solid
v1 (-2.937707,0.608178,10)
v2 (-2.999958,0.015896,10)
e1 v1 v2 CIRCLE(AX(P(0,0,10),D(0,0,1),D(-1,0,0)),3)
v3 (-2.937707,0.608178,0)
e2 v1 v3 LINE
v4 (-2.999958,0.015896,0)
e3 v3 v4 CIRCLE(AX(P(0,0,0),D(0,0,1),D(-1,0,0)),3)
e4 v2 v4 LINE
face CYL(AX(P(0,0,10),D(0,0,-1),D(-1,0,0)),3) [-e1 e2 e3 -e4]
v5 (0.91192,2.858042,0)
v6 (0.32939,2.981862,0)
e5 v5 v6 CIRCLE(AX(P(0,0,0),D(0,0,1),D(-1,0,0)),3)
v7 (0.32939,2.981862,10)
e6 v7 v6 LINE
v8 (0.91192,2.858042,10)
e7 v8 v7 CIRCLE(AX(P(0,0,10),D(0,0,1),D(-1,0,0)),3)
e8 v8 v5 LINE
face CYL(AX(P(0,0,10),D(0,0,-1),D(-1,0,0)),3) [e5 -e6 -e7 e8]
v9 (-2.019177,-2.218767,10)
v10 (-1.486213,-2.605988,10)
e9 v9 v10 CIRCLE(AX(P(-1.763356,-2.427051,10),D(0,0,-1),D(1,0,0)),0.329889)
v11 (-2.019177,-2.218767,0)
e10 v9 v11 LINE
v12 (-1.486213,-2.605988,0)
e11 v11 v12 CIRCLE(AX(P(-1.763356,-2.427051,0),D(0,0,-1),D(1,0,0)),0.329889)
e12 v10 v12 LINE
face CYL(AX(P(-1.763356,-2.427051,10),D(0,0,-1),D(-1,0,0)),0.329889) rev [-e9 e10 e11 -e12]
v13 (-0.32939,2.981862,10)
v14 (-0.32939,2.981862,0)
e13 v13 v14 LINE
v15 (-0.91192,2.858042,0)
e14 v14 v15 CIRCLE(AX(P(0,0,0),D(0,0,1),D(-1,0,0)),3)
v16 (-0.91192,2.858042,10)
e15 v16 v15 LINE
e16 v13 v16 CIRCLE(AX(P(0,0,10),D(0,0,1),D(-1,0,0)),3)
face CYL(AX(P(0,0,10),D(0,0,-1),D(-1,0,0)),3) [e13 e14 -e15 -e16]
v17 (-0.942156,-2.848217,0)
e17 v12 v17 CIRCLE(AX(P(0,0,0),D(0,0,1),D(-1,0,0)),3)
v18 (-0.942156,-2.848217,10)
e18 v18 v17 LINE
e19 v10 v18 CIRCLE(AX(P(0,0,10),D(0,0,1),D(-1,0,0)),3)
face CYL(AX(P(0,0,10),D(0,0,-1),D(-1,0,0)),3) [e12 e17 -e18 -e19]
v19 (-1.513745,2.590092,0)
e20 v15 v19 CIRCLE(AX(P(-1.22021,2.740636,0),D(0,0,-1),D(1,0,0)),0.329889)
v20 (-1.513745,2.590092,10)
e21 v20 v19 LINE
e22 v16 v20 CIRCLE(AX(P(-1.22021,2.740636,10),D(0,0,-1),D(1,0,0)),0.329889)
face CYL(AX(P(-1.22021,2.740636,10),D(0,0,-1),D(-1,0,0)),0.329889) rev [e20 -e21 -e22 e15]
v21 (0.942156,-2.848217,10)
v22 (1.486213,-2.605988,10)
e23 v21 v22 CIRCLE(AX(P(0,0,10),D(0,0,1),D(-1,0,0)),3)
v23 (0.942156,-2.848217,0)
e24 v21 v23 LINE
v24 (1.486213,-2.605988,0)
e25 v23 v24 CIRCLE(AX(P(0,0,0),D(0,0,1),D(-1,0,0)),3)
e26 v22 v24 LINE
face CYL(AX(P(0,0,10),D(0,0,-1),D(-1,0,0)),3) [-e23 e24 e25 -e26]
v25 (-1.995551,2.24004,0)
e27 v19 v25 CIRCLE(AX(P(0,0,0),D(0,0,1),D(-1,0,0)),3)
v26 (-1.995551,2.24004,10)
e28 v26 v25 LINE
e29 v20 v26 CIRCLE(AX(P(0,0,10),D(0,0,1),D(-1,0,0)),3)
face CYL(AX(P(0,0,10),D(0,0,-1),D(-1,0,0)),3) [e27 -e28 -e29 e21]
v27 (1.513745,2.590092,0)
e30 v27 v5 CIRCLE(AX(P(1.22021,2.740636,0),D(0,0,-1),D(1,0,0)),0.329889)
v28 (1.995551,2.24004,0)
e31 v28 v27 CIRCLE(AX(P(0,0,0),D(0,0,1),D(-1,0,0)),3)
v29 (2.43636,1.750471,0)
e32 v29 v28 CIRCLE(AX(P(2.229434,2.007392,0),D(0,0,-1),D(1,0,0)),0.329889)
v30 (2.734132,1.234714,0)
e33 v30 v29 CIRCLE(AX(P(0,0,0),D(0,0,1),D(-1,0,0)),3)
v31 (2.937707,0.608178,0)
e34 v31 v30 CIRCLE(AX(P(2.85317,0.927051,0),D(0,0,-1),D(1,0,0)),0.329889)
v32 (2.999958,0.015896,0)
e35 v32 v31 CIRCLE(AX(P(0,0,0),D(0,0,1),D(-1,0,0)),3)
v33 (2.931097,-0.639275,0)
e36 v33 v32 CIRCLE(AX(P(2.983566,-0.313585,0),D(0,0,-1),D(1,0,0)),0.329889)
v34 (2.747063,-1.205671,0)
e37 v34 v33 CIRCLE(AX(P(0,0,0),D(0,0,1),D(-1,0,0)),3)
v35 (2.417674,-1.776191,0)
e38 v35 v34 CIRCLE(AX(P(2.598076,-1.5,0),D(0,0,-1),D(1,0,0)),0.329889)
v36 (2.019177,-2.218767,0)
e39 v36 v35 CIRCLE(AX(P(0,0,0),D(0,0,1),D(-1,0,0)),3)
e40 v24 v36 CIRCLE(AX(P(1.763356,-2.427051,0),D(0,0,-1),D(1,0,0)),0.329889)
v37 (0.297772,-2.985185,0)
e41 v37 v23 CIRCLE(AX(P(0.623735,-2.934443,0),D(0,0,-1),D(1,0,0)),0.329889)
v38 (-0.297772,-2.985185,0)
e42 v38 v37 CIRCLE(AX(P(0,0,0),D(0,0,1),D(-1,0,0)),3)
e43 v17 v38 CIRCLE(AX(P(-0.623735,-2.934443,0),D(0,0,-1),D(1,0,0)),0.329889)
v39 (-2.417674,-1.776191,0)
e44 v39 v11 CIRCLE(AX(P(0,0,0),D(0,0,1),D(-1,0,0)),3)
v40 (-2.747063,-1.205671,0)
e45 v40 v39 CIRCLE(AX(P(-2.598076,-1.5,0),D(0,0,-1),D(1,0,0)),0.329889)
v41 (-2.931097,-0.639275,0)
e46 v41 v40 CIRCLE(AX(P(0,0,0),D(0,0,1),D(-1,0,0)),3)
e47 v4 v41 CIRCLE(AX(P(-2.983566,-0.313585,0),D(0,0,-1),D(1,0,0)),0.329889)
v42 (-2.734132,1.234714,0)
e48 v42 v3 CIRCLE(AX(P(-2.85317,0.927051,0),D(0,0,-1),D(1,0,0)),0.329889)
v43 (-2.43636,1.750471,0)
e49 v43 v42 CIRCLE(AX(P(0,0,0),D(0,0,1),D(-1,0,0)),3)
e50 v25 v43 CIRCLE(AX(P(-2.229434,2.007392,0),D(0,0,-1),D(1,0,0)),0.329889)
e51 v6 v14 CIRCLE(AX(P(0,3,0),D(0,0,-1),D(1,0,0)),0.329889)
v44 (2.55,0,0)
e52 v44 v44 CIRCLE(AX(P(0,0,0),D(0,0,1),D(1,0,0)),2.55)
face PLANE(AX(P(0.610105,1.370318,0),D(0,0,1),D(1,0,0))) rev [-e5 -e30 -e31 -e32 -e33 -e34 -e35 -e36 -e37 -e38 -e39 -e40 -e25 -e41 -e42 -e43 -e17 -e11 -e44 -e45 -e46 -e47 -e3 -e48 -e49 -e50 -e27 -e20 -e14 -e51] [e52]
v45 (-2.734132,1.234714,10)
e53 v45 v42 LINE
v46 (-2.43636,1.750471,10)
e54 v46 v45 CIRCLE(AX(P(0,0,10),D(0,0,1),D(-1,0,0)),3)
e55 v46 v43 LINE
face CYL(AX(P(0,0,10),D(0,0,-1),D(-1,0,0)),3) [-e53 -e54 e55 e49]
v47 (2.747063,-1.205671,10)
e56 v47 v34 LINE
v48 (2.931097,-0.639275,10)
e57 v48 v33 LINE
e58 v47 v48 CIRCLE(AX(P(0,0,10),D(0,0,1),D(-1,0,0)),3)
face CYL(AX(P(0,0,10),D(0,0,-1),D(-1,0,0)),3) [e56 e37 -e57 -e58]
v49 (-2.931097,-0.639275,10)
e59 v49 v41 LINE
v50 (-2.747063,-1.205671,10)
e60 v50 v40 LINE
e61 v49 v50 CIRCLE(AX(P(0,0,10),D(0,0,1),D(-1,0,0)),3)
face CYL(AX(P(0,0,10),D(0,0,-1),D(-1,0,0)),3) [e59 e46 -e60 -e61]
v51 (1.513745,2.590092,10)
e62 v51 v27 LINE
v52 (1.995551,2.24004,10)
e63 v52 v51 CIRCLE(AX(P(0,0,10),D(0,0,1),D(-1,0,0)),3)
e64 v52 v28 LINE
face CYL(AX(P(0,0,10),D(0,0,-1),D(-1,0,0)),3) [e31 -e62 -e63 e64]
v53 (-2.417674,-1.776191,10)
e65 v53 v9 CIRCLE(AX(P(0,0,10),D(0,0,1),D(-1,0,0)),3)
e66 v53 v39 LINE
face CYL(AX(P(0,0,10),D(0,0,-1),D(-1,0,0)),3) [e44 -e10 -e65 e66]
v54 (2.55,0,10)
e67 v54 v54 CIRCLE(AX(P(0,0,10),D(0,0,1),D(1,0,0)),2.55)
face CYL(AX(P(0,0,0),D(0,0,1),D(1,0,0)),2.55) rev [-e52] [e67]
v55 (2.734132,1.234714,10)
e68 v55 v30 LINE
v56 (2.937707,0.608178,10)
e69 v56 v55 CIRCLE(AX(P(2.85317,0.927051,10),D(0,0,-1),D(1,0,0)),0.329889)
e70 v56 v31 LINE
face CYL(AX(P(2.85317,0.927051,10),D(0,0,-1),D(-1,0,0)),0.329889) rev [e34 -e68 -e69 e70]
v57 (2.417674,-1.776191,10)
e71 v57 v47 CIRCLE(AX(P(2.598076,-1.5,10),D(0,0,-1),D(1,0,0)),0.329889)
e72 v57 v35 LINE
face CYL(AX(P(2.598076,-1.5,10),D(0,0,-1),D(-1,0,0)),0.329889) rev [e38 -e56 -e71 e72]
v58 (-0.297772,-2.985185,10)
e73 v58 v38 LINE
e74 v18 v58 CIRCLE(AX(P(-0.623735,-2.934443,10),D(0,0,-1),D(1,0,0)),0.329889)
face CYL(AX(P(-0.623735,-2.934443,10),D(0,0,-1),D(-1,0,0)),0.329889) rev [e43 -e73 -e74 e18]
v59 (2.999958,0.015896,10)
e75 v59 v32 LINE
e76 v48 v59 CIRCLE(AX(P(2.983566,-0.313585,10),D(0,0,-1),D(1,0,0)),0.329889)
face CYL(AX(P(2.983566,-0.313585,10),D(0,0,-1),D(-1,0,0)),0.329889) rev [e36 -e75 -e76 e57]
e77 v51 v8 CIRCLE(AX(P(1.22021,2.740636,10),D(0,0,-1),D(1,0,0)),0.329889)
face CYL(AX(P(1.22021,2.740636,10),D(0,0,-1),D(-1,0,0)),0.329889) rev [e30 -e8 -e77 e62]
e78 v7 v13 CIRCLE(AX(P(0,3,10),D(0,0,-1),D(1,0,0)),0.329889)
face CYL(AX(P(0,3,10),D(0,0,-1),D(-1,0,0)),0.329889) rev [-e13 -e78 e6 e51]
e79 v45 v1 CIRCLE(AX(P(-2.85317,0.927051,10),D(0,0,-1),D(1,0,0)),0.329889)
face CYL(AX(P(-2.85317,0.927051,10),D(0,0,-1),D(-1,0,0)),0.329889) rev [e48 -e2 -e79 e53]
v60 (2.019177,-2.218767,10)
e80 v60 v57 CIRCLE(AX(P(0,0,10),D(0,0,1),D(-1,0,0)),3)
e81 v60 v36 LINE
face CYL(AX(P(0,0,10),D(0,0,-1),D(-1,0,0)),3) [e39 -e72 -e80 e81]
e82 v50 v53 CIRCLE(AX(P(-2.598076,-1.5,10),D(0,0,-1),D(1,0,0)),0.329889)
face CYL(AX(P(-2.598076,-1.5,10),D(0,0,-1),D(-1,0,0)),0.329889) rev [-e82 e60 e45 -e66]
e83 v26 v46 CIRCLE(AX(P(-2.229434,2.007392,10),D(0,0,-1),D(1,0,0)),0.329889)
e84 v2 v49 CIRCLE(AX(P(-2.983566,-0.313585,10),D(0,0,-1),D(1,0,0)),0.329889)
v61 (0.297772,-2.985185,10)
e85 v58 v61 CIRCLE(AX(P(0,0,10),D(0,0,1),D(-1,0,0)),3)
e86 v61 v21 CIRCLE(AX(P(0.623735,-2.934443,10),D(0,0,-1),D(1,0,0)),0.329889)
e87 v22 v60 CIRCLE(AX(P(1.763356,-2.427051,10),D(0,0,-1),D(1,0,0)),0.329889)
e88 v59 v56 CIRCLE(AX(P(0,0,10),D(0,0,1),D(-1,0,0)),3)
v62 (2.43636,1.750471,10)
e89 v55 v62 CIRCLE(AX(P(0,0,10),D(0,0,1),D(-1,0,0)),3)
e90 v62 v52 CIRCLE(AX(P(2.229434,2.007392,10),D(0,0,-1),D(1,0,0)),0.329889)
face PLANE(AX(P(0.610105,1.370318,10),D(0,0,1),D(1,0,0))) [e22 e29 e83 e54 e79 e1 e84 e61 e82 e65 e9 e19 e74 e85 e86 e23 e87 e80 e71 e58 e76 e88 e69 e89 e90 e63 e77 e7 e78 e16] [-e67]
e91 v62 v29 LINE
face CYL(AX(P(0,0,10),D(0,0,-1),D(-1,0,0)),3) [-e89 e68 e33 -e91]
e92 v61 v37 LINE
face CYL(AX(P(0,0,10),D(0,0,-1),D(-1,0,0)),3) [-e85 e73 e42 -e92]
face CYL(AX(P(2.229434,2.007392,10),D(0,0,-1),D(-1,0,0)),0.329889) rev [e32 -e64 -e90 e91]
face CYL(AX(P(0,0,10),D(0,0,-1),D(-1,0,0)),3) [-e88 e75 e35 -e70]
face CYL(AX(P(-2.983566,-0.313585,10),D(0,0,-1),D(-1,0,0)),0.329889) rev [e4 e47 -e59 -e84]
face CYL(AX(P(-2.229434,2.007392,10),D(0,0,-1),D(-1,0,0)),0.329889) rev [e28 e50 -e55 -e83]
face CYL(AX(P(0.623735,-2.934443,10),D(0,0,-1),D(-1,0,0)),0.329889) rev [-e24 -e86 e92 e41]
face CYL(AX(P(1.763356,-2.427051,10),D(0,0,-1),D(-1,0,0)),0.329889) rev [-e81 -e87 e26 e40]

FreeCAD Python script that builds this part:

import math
import FreeCAD as App
import Part
import Sketcher

V = App.Vector

doc = App.newDocument("Part")
body = doc.addObject("PartDesign::Body", "Body")

# Sketch on XY plane
sketch1 = body.newObject("Sketcher::SketchObject", "Sketch")
sketch1.AttachmentSupport = (doc.getObject("XY_Plane"), [""])
sketch1.MapMode = "FlatFace"
sketch1.addGeometry(Part.ArcOfCircle(Part.Circle(V(0, 0, 0), V(0, 0, 1), 3), math.radians(72.3), math.radians(83.7)), False)
sketch1.addGeometry(Part.ArcOfCircle(Part.Circle(V(0, 3, 0), V(0, 0, 1), 0.33), math.radians(-177), math.radians(-3)), False)
sketch1.addGeometry(Part.ArcOfCircle(Part.Circle(V(0, 0, 0), V(0, 0, 1), 3), math.radians(96.3), math.radians(107.7)), False)
sketch1.addGeometry(Part.ArcOfCircle(Part.Circle(V(-1.22, 2.74, 0), V(0, 0, 1), 0.33), math.radians(-153), math.radians(21)), False)
sketch1.addGeometry(Part.ArcOfCircle(Part.Circle(V(0, 0, 0), V(0, 0, 1), 3), math.radians(120.3), math.radians(131.7)), False)
sketch1.addGeometry(Part.ArcOfCircle(Part.Circle(V(-2.23, 2.01, 0), V(0, 0, 1), 0.33), math.radians(-129), math.radians(45)), False)
sketch1.addGeometry(Part.ArcOfCircle(Part.Circle(V(0, 0, 0), V(0, 0, 1), 3), math.radians(144.3), math.radians(155.7)), False)
sketch1.addGeometry(Part.ArcOfCircle(Part.Circle(V(-2.85, 0.93, 0), V(0, 0, 1), 0.33), math.radians(-105), math.radians(69)), False)
sketch1.addGeometry(Part.ArcOfCircle(Part.Circle(V(0, 0, 0), V(0, 0, 1), 3), math.radians(168.3), math.radians(179.7)), False)
sketch1.addGeometry(Part.ArcOfCircle(Part.Circle(V(-2.98, -0.31, 0), V(0, 0, 1), 0.33), math.radians(-81), math.radians(93)), False)
sketch1.addGeometry(Part.ArcOfCircle(Part.Circle(V(0, 0, 0), V(0, 0, 1), 3), math.radians(-167.7), math.radians(-156.3)), False)
sketch1.addGeometry(Part.ArcOfCircle(Part.Circle(V(-2.6, -1.5, 0), V(0, 0, 1), 0.33), math.radians(-57), math.radians(117)), False)
sketch1.addGeometry(Part.ArcOfCircle(Part.Circle(V(0, 0, 0), V(0, 0, 1), 3), math.radians(-143.7), math.radians(-132.3)), False)
sketch1.addGeometry(Part.ArcOfCircle(Part.Circle(V(-1.76, -2.43, 0), V(0, 0, 1), 0.33), math.radians(-33), math.radians(141)), False)
sketch1.addGeometry(Part.ArcOfCircle(Part.Circle(V(0, 0, 0), V(0, 0, 1), 3), math.radians(-119.7), math.radians(-108.3)), False)
sketch1.addGeometry(Part.ArcOfCircle(Part.Circle(V(-0.62, -2.93, 0), V(0, 0, 1), 0.33), math.radians(-9), math.radians(165)), False)
sketch1.addGeometry(Part.ArcOfCircle(Part.Circle(V(0, 0, 0), V(0, 0, 1), 3), math.radians(-95.7), math.radians(-84.3)), False)
sketch1.addGeometry(Part.ArcOfCircle(Part.Circle(V(0.62, -2.93, 0), V(0, 0, 1), 0.33), math.radians(15), math.radians(189)), False)
sketch1.addGeometry(Part.ArcOfCircle(Part.Circle(V(0, 0, 0), V(0, 0, 1), 3), math.radians(-71.7), math.radians(-60.3)), False)
sketch1.addGeometry(Part.ArcOfCircle(Part.Circle(V(1.76, -2.43, 0), V(0, 0, 1), 0.33), math.radians(39), math.radians(213)), False)
sketch1.addGeometry(Part.ArcOfCircle(Part.Circle(V(0, 0, 0), V(0, 0, 1), 3), math.radians(-47.7), math.radians(-36.3)), False)
sketch1.addGeometry(Part.ArcOfCircle(Part.Circle(V(2.6, -1.5, 0), V(0, 0, 1), 0.33), math.radians(63), math.radians(237)), False)
sketch1.addGeometry(Part.ArcOfCircle(Part.Circle(V(0, 0, 0), V(0, 0, 1), 3), math.radians(-23.7), math.radians(-12.3)), False)
sketch1.addGeometry(Part.ArcOfCircle(Part.Circle(V(2.98, -0.31, 0), V(0, 0, 1), 0.33), math.radians(87), math.radians(261)), False)
sketch1.addGeometry(Part.ArcOfCircle(Part.Circle(V(0, 0, 0), V(0, 0, 1), 3), math.radians(0.3), math.radians(11.7)), False)
sketch1.addGeometry(Part.ArcOfCircle(Part.Circle(V(2.85, 0.93, 0), V(0, 0, 1), 0.33), math.radians(111), math.radians(285)), False)
sketch1.addGeometry(Part.ArcOfCircle(Part.Circle(V(0, 0, 0), V(0, 0, 1), 3), math.radians(24.3), math.radians(35.7)), False)
sketch1.addGeometry(Part.ArcOfCircle(Part.Circle(V(2.23, 2.01, 0), V(0, 0, 1), 0.33), math.radians(135), math.radians(309)), False)
sketch1.addGeometry(Part.ArcOfCircle(Part.Circle(V(0, 0, 0), V(0, 0, 1), 3), math.radians(48.3), math.radians(59.7)), False)
sketch1.addGeometry(Part.ArcOfCircle(Part.Circle(V(1.22, 2.74, 0), V(0, 0, 1), 0.33), math.radians(159), math.radians(333)), False)
sketch1.addConstraint(Sketcher.Constraint("Coincident", 0, 2, 1, 2))
sketch1.addConstraint(Sketcher.Constraint("Coincident", 1, 1, 2, 1))
sketch1.addConstraint(Sketcher.Constraint("Coincident", 2, 2, 3, 2))
sketch1.addConstraint(Sketcher.Constraint("Coincident", 3, 1, 4, 1))
sketch1.addConstraint(Sketcher.Constraint("Coincident", 4, 2, 5, 2))
sketch1.addConstraint(Sketcher.Constraint("Coincident", 5, 1, 6, 1))
sketch1.addConstraint(Sketcher.Constraint("Coincident", 6, 2, 7, 2))
sketch1.addConstraint(Sketcher.Constraint("Coincident", 7, 1, 8, 1))
sketch1.addConstraint(Sketcher.Constraint("Coincident", 8, 2, 9, 2))
sketch1.addConstraint(Sketcher.Constraint("Coincident", 9, 1, 10, 1))
sketch1.addConstraint(Sketcher.Constraint("Coincident", 10, 2, 11, 2))
sketch1.addConstraint(Sketcher.Constraint("Coincident", 11, 1, 12, 1))
sketch1.addConstraint(Sketcher.Constraint("Coincident", 12, 2, 13, 2))
sketch1.addConstraint(Sketcher.Constraint("Coincident", 13, 1, 14, 1))
sketch1.addConstraint(Sketcher.Constraint("Coincident", 14, 2, 15, 2))
sketch1.addConstraint(Sketcher.Constraint("Coincident", 15, 1, 16, 1))
sketch1.addConstraint(Sketcher.Constraint("Coincident", 16, 2, 17, 2))
sketch1.addConstraint(Sketcher.Constraint("Coincident", 17, 1, 18, 1))
sketch1.addConstraint(Sketcher.Constraint("Coincident", 18, 2, 19, 2))
sketch1.addConstraint(Sketcher.Constraint("Coincident", 19, 1, 20, 1))
sketch1.addConstraint(Sketcher.Constraint("Coincident", 20, 2, 21, 2))
sketch1.addConstraint(Sketcher.Constraint("Coincident", 21, 1, 22, 1))
sketch1.addConstraint(Sketcher.Constraint("Coincident", 22, 2, 23, 2))
sketch1.addConstraint(Sketcher.Constraint("Coincident", 23, 1, 24, 1))
sketch1.addConstraint(Sketcher.Constraint("Coincident", 24, 2, 25, 2))
sketch1.addConstraint(Sketcher.Constraint("Coincident", 25, 1, 26, 1))
sketch1.addConstraint(Sketcher.Constraint("Coincident", 26, 2, 27, 2))
sketch1.addConstraint(Sketcher.Constraint("Coincident", 27, 1, 28, 1))
sketch1.addConstraint(Sketcher.Constraint("Coincident", 28, 2, 29, 2))
sketch1.addConstraint(Sketcher.Constraint("Coincident", 29, 1, 0, 1))
sketch1.addConstraint(Sketcher.Constraint("Coincident", 0, 3, -1, 1))
sketch1.addConstraint(Sketcher.Constraint("Coincident", 2, 3, -1, 1))
sketch1.addConstraint(Sketcher.Constraint("Coincident", 4, 3, -1, 1))
sketch1.addConstraint(Sketcher.Constraint("Coincident", 6, 3, -1, 1))
sketch1.addConstraint(Sketcher.Constraint("Coincident", 8, 3, -1, 1))
sketch1.addConstraint(Sketcher.Constraint("Coincident", 10, 3, -1, 1))
sketch1.addConstraint(Sketcher.Constraint("Coincident", 12, 3, -1, 1))
sketch1.addConstraint(Sketcher.Constraint("Coincident", 14, 3, -1, 1))
sketch1.addConstraint(Sketcher.Constraint("Coincident", 16, 3, -1, 1))
sketch1.addConstraint(Sketcher.Constraint("Coincident", 18, 3, -1, 1))
sketch1.addConstraint(Sketcher.Constraint("Coincident", 20, 3, -1, 1))
sketch1.addConstraint(Sketcher.Constraint("Coincident", 22, 3, -1, 1))
sketch1.addConstraint(Sketcher.Constraint("Coincident", 24, 3, -1, 1))
sketch1.addConstraint(Sketcher.Constraint("Coincident", 26, 3, -1, 1))
sketch1.addConstraint(Sketcher.Constraint("Coincident", 28, 3, -1, 1))
sketch1.addConstraint(Sketcher.Constraint("Equal", 0, 2))
sketch1.addConstraint(Sketcher.Constraint("Equal", 1, 3))
sketch1.addConstraint(Sketcher.Constraint("Equal", 2, 4))
sketch1.addConstraint(Sketcher.Constraint("Equal", 3, 5))
sketch1.addConstraint(Sketcher.Constraint("Equal", 4, 6))
sketch1.addConstraint(Sketcher.Constraint("Equal", 5, 7))
sketch1.addConstraint(Sketcher.Constraint("Equal", 6, 8))
sketch1.addConstraint(Sketcher.Constraint("Equal", 7, 9))
sketch1.addConstraint(Sketcher.Constraint("Equal", 8, 10))
sketch1.addConstraint(Sketcher.Constraint("Equal", 9, 11))
sketch1.addConstraint(Sketcher.Constraint("Equal", 10, 12))
sketch1.addConstraint(Sketcher.Constraint("Equal", 11, 13))
sketch1.addConstraint(Sketcher.Constraint("Equal", 12, 14))
sketch1.addConstraint(Sketcher.Constraint("Equal", 13, 15))
sketch1.addConstraint(Sketcher.Constraint("Equal", 14, 16))
sketch1.addConstraint(Sketcher.Constraint("Equal", 15, 17))
sketch1.addConstraint(Sketcher.Constraint("Equal", 16, 18))
sketch1.addConstraint(Sketcher.Constraint("Equal", 17, 19))
sketch1.addConstraint(Sketcher.Constraint("Equal", 18, 20))
sketch1.addConstraint(Sketcher.Constraint("Equal", 19, 21))
sketch1.addConstraint(Sketcher.Constraint("Equal", 20, 22))
sketch1.addConstraint(Sketcher.Constraint("Equal", 21, 23))
sketch1.addConstraint(Sketcher.Constraint("Equal", 22, 24))
sketch1.addConstraint(Sketcher.Constraint("Equal", 23, 25))
sketch1.addConstraint(Sketcher.Constraint("Equal", 24, 26))
sketch1.addConstraint(Sketcher.Constraint("Equal", 25, 27))
sketch1.addConstraint(Sketcher.Constraint("Equal", 26, 28))
sketch1.addConstraint(Sketcher.Constraint("Equal", 27, 29))
sketch1.addConstraint(Sketcher.Constraint("Symmetric", 15, 3, 17, 3, -2))
sketch1.addConstraint(Sketcher.Constraint("Symmetric", 13, 3, 19, 3, -2))
sketch1.addConstraint(Sketcher.Constraint("Symmetric", 11, 3, 21, 3, -2))
sketch1.addConstraint(Sketcher.Constraint("Symmetric", 9, 3, 23, 3, -2))
sketch1.addConstraint(Sketcher.Constraint("Symmetric", 7, 3, 25, 3, -2))
sketch1.addConstraint(Sketcher.Constraint("Symmetric", 5, 3, 27, 3, -2))
sketch1.addConstraint(Sketcher.Constraint("Symmetric", 3, 3, 29, 3, -2))
sketch1.addConstraint(Sketcher.Constraint("PointOnObject", 1, 3, -2))
sketch1.addConstraint(Sketcher.Constraint("Radius", 0, 3.0))
sketch1.addConstraint(Sketcher.Constraint("DistanceY", -1, 1, 1, 3, 3.0))
sketch1.addConstraint(Sketcher.Constraint("DistanceY", 11, 3, -1, 1, 1.5))
sketch1.addConstraint(Sketcher.Constraint("Radius", 1, 0.329889))
sketch1.addConstraint(Sketcher.Constraint("DistanceY", 4, 2, 2, 2, 0.618002))
sketch1.addConstraint(Sketcher.Constraint("DistanceX", 3, 3, 0, 2, 1.5496))
sketch1.addConstraint(Sketcher.Constraint("DistanceY", 5, 3, 3, 1, 0.5827))
sketch1.addConstraint(Sketcher.Constraint("DistanceY", 9, 3, 6, 2, 1.5483))
sketch1.addConstraint(Sketcher.Constraint("DistanceX", 11, 3, 12, 2, 0.5789))
sketch1.addConstraint(Sketcher.Constraint("DistanceX", 13, 3, 14, 2, 0.8212))
sketch1.addConstraint(Sketcher.Constraint("DistanceY", -1, 1, 5, 3, 2.007392))
sketch1.addConstraint(Sketcher.Constraint("DistanceX", 7, 3, -1, 1, 2.85317))
sketch1.addConstraint(Sketcher.Constraint("DistanceY", -1, 1, 7, 3, 0.927051))
sketch1.addConstraint(Sketcher.Constraint("DistanceY", 13, 3, -1, 1, 2.427051))
sketch1.addConstraint(Sketcher.Constraint("DistanceY", 10, 2, -1, 1, 1.205671))
sketch1.addConstraint(Sketcher.Constraint("DistanceX", 9, 3, 5, 3, 0.754131))
sketch1.addConstraint(Sketcher.Constraint("DistanceX", 13, 3, 15, 3, 1.139621))
pad1 = body.newObject("PartDesign::Pad", "Pad")
pad1.Profile = sketch1
pad1.Length = 10

# Sketch on XY plane
sketch2 = body.newObject("Sketcher::SketchObject", "Sketch001")
sketch2.AttachmentSupport = (doc.getObject("XY_Plane"), [""])
sketch2.MapMode = "FlatFace"
sketch2.AttachmentOffset = App.Placement(V(0, 0, 10), App.Rotation())
sketch2.addGeometry(Part.Circle(V(0, 0, 0), V(0, 0, 1), 2.5), False)
sketch2.addConstraint(Sketcher.Constraint("Coincident", 0, 3, -1, 1))
sketch2.addConstraint(Sketcher.Constraint("Diameter", 0, 5.1))
pocket1 = body.newObject("PartDesign::Pocket", "Pocket")
pocket1.Profile = sketch2
pocket1.Length = 10

doc.recompute()
